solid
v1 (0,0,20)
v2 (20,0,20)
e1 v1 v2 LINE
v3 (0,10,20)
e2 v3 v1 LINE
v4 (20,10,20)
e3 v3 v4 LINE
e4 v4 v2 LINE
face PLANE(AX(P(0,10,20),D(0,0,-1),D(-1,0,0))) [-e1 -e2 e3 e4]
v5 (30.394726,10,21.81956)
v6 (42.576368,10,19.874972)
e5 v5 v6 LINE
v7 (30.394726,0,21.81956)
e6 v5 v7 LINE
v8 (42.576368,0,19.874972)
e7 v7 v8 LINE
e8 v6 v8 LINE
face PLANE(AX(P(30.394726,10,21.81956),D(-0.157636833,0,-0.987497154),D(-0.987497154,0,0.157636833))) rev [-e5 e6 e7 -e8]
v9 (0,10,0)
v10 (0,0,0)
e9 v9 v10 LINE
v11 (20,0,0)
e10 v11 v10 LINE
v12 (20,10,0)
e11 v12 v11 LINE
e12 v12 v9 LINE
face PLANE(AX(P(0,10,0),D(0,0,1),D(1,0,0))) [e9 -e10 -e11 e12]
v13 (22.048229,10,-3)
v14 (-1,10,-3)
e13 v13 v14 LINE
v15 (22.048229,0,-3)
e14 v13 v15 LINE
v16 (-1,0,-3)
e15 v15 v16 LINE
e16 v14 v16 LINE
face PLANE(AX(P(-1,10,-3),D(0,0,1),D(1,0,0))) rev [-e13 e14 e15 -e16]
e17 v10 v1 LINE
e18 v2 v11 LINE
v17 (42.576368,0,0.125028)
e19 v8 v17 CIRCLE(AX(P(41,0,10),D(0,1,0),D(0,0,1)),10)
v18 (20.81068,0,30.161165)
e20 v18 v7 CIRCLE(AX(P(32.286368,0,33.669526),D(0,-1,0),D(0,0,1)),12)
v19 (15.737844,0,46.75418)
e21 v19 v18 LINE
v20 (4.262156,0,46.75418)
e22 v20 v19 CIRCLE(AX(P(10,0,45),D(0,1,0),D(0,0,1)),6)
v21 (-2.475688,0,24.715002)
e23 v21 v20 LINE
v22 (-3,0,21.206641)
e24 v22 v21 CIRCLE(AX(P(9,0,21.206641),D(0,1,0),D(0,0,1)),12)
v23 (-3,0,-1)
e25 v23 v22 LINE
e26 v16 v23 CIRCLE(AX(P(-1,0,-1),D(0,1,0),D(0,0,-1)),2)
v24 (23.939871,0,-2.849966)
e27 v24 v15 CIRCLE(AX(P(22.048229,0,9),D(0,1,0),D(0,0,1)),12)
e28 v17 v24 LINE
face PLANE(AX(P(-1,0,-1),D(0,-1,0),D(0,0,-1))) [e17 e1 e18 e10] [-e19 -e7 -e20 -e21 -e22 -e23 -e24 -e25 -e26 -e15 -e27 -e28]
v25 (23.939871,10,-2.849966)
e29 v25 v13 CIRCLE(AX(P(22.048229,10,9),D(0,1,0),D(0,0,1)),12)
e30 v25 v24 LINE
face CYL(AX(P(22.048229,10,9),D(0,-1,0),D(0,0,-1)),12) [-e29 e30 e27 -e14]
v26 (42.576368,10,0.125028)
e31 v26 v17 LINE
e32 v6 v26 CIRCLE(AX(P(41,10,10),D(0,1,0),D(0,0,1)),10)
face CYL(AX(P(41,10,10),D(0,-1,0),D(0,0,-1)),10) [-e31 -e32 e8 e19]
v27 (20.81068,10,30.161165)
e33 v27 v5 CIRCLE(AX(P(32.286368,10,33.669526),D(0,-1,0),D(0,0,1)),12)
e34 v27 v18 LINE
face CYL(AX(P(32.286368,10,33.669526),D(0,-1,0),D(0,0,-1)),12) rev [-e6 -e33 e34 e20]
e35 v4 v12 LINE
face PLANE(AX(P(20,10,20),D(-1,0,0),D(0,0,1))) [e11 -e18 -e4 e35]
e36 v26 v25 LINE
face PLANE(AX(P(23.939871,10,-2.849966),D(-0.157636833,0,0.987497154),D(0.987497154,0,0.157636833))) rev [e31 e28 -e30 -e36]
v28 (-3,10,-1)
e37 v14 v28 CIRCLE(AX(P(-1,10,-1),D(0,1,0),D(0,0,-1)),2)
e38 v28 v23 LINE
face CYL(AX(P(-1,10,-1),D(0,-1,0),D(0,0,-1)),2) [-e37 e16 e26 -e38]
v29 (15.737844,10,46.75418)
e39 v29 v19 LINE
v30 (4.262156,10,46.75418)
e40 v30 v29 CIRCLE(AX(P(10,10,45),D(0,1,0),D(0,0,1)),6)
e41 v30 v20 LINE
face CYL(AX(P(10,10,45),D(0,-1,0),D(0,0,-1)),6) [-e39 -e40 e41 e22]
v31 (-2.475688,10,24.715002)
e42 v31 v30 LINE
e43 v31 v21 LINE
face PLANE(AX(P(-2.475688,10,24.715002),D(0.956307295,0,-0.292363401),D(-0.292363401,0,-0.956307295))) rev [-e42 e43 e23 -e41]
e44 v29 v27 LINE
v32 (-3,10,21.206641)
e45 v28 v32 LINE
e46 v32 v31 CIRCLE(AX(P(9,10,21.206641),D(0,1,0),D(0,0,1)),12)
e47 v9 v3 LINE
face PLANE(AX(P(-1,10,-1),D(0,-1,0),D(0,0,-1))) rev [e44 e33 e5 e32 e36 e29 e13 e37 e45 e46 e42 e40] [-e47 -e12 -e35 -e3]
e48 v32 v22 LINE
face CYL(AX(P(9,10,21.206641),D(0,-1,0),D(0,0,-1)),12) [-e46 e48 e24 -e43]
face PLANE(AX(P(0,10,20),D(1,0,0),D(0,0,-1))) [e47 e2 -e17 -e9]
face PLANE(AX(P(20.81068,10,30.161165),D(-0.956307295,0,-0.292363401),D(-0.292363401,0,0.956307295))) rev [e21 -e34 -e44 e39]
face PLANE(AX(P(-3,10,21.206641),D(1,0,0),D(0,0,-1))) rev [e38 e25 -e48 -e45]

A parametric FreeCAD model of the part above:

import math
import FreeCAD as App
import Part
import Sketcher

V = App.Vector


def add_polygon(sketch, points):
    """Adds a closed chain of lines whose ends are joined by coincident constraints."""
    first, n = sketch.GeometryCount, len(points)
    for a, b in zip(points, points[1:] + points[:1]):
        sketch.addGeometry(Part.LineSegment(App.Vector(*a, 0), App.Vector(*b, 0)), False)
    for i in range(n):
        sketch.addConstraint(Sketcher.Constraint("Coincident", first + i, 2, first + (i + 1) % n, 1))

doc = App.newDocument("Part")
body = doc.addObject("PartDesign::Body", "Body")

# Sketch on XZ plane
sketch1 = body.newObject("Sketcher::SketchObject", "Sketch")
sketch1.AttachmentSupport = (doc.getObject("XZ_Plane"), [""])
sketch1.MapMode = "FlatFace"
sketch1.addGeometry(Part.LineSegment(V(42.6, 0.1, 0), V(23.9, -2.8, 0)), False)  # 0
sketch1.addGeometry(Part.ArcOfCircle(Part.Circle(V(22, 9, 0), V(0, 0, 1), 12), math.radians(-90), math.radians(-80.93)), False)  # 1
sketch1.addGeometry(Part.LineSegment(V(22, -3, 0), V(-1, -3, 0)), False)  # 2
sketch1.addGeometry(Part.ArcOfCircle(Part.Circle(V(-1, -1, 0), V(0, 0, 1), 2), math.radians(-180), math.radians(-90)), False)  # 3
sketch1.addGeometry(Part.LineSegment(V(-3, -1, 0), V(-3, 21.2, 0)), False)  # 4
sketch1.addGeometry(Part.ArcOfCircle(Part.Circle(V(9, 21.2, 0), V(0, 0, 1), 12), math.radians(163), math.radians(180)), False)  # 5
sketch1.addGeometry(Part.LineSegment(V(-2.5, 24.7, 0), V(4.3, 46.8, 0)), False)  # 6
sketch1.addGeometry(Part.ArcOfCircle(Part.Circle(V(10, 45, 0), V(0, 0, 1), 6), math.radians(17), math.radians(163)), False)  # 7
sketch1.addGeometry(Part.LineSegment(V(15.7, 46.8, 0), V(20.8, 30.2, 0)), False)  # 8
sketch1.addGeometry(Part.ArcOfCircle(Part.Circle(V(32.3, 33.7, 0), V(0, 0, 1), 12), math.radians(-163), math.radians(-99)), False)  # 9
sketch1.addGeometry(Part.LineSegment(V(30.4, 21.8, 0), V(42.6, 19.9, 0)), False)  # 10
sketch1.addGeometry(Part.ArcOfCircle(Part.Circle(V(41, 10, 0), V(0, 0, 1), 10), math.radians(-81), math.radians(81)), False)  # 11
add_polygon(sketch1, [(0, 20), (0, 0), (20, 0), (20, 20)])  # lines 12-15
sketch1.addConstraint(Sketcher.Constraint("Tangent", 0, 2, 1, 2))
sketch1.addConstraint(Sketcher.Constraint("Tangent", 1, 1, 2, 1))
sketch1.addConstraint(Sketcher.Constraint("Tangent", 2, 2, 3, 2))
sketch1.addConstraint(Sketcher.Constraint("Tangent", 3, 1, 4, 1))
sketch1.addConstraint(Sketcher.Constraint("Tangent", 4, 2, 5, 2))
sketch1.addConstraint(Sketcher.Constraint("Tangent", 5, 1, 6, 1))
sketch1.addConstraint(Sketcher.Constraint("Tangent", 6, 2, 7, 2))
sketch1.addConstraint(Sketcher.Constraint("Tangent", 7, 1, 8, 1))
sketch1.addConstraint(Sketcher.Constraint("Tangent", 8, 2, 9, 1))
sketch1.addConstraint(Sketcher.Constraint("Tangent", 9, 2, 10, 1))
sketch1.addConstraint(Sketcher.Constraint("Tangent", 10, 2, 11, 2))
sketch1.addConstraint(Sketcher.Constraint("Tangent", 11, 1, 0, 1))
sketch1.addConstraint(Sketcher.Constraint("Horizontal", 2))
sketch1.addConstraint(Sketcher.Constraint("Vertical", 4))
sketch1.addConstraint(Sketcher.Constraint("Vertical", 12))
sketch1.addConstraint(Sketcher.Constraint("Horizontal", 13))
sketch1.addConstraint(Sketcher.Constraint("Vertical", 14))
sketch1.addConstraint(Sketcher.Constraint("Horizontal", 15))
sketch1.addConstraint(Sketcher.Constraint("Coincident", 12, 2, -1, 1))
sketch1.addConstraint(Sketcher.Constraint("Equal", 1, 5))
sketch1.addConstraint(Sketcher.Constraint("Equal", 5, 9))
sketch1.addConstraint(Sketcher.Constraint("Horizontal", 6, 2, 7, 1))
sketch1.addConstraint(Sketcher.Constraint("Vertical", 10, 2, 11, 1))
sketch1.addConstraint(Sketcher.Constraint("Equal", 15, 12))
sketch1.addConstraint(Sketcher.Constraint("Radius", 1, 12.0))
sketch1.addConstraint(Sketcher.Constraint("Radius", 3, 2.0))
sketch1.addConstraint(Sketcher.Constraint("Radius", 7, 6.0))
sketch1.addConstraint(Sketcher.Constraint("Radius", 11, 10.0))
sketch1.addConstraint(Sketcher.Constraint("DistanceX", 13, 1, 13, 2, 20.0))
sketch1.addConstraint(Sketcher.Constraint("DistanceY", -1, 1, 1, 3, 9.0))
sketch1.addConstraint(Sketcher.Constraint("DistanceX", 3, 3, -1, 1, 1.0))
sketch1.addConstraint(Sketcher.Constraint("DistanceX", -1, 1, 7, 3, 10.0))
sketch1.addConstraint(Sketcher.Constraint("DistanceY", -1, 1, 7, 3, 45.0))
sketch1.addConstraint(Sketcher.Constraint("DistanceX", -1, 1, 11, 3, 41.0))
sketch1.addConstraint(Sketcher.Constraint("DistanceY", -1, 1, 11, 3, 10.0))
sketch1.addConstraint(Sketcher.Constraint("DistanceX", 9, 3, 10, 2, 10.290001))
sketch1.addConstraint(Sketcher.Constraint("DistanceX", 2, 2, 2, 1, 23.048229))
pad1 = body.newObject("PartDesign::Pad", "Pad")
pad1.Profile = sketch1
pad1.Length = 10
pad1.Reversed = True

doc.recompute()
